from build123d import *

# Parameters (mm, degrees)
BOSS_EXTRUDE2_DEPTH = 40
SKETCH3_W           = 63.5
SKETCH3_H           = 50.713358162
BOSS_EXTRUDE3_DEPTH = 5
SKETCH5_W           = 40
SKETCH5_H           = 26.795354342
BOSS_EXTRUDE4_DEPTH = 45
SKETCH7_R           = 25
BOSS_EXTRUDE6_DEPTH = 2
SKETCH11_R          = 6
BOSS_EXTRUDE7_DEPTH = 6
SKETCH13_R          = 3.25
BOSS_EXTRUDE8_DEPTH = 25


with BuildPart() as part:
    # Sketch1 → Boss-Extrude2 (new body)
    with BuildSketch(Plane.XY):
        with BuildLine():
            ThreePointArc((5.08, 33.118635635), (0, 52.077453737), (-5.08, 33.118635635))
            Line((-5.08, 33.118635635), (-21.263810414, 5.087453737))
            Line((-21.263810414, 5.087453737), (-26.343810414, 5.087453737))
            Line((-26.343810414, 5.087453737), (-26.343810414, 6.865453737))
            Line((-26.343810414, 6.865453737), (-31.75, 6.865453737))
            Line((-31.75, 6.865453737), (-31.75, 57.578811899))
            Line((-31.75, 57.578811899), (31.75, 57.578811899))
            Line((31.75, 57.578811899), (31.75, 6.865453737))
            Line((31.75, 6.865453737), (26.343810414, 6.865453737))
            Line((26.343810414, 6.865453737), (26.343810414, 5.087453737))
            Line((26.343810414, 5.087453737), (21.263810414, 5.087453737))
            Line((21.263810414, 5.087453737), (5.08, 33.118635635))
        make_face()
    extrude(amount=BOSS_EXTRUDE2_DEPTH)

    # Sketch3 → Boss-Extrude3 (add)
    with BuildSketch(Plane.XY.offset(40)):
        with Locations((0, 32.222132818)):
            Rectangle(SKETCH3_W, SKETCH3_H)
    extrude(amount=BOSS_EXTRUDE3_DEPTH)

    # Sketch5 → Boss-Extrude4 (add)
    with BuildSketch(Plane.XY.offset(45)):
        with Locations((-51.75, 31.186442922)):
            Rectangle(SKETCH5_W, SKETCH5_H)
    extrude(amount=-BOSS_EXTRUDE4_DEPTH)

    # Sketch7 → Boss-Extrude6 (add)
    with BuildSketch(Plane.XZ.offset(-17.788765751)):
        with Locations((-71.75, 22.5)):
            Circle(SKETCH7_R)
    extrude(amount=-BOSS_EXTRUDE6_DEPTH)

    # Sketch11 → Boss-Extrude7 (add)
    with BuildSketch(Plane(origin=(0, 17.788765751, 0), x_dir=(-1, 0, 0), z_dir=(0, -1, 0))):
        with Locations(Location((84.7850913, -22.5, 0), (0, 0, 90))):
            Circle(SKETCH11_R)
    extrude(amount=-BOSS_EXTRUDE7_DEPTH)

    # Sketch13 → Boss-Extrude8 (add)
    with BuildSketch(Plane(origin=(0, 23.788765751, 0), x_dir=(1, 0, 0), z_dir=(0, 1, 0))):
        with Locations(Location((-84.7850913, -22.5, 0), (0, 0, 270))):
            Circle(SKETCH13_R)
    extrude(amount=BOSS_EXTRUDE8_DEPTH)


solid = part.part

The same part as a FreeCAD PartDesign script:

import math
import FreeCAD as App
import Part
import Sketcher
from FreeCAD import Vector
Q = App.Units.Quantity

doc = App.newDocument("Part")
params = doc.addObject("Spreadsheet::Sheet", "Params")
for row, (alias, value) in enumerate([
    ("sketch1_radius", "10.16 mm"),
    ("sketch1_width", "63.5 mm"),
    ("sketch1_width2", "5.08 mm"),
    ("pad1_length", "40 mm"),
    ("sketch2_width", "63.5 mm"),
    ("pad2_length", "5 mm"),
    ("sketch3_width", "40 mm"),
    ("pad3_length", "45 mm"),
    ("sketch4_diameter", "50 mm"),
    ("pad4_length", "2 mm"),
    ("sketch5_diameter", "12 mm"),
    ("pad5_length", "6 mm"),
    ("sketch6_diameter", "6.5 mm"),
    ("pad6_length", "25 mm"),
], start=1):
    params.set(f"A{row}", alias)
    params.set(f"B{row}", "=" + value)
    params.setAlias(f"B{row}", alias)

body = doc.addObject("PartDesign::Body", "Body")

# Sketch on XY plane
sketch1 = body.newObject("Sketcher::SketchObject", "Sketch")
sketch1.AttachmentSupport = (doc.getObject("XY_Plane"), [""])
sketch1.MapMode = "FlatFace"
sketch1.addGeometry([
    Part.ArcOfCircle(Part.Circle(Vector(0, 41.9, 0), Vector(0, 0, 1), 10.2), math.radians(-60), math.radians(240)),  # 0
    Part.LineSegment(Vector(5.1, 33.1, 0), Vector(21.3, 5.1, 0)),  # 1
    Part.LineSegment(Vector(21.3, 5.1, 0), Vector(26.3, 5.1, 0)),  # 2
    Part.LineSegment(Vector(26.3, 5.1, 0), Vector(26.3, 6.9, 0)),  # 3
    Part.LineSegment(Vector(26.3, 6.9, 0), Vector(31.8, 6.9, 0)),  # 4
    Part.LineSegment(Vector(31.8, 6.9, 0), Vector(31.8, 57.6, 0)),  # 5
    Part.LineSegment(Vector(31.8, 57.6, 0), Vector(-31.8, 57.6, 0)),  # 6
    Part.LineSegment(Vector(-31.8, 57.6, 0), Vector(-31.8, 6.9, 0)),  # 7
    Part.LineSegment(Vector(-31.8, 6.9, 0), Vector(-26.3, 6.9, 0)),  # 8
    Part.LineSegment(Vector(-26.3, 6.9, 0), Vector(-26.3, 5.1, 0)),  # 9
    Part.LineSegment(Vector(-26.3, 5.1, 0), Vector(-21.3, 5.1, 0)),  # 10
    Part.LineSegment(Vector(-21.3, 5.1, 0), Vector(-5.1, 33.1, 0)),  # 11
], False)
sketch1.addConstraint([
    Sketcher.Constraint("Coincident", 0, 1, 1, 1),
    Sketcher.Constraint("Coincident", 1, 2, 2, 1),
    Sketcher.Constraint("Coincident", 2, 2, 3, 1),
    Sketcher.Constraint("Coincident", 3, 2, 4, 1),
    Sketcher.Constraint("Coincident", 4, 2, 5, 1),
    Sketcher.Constraint("Coincident", 5, 2, 6, 1),
    Sketcher.Constraint("Coincident", 6, 2, 7, 1),
    Sketcher.Constraint("Coincident", 7, 2, 8, 1),
    Sketcher.Constraint("Coincident", 8, 2, 9, 1),
    Sketcher.Constraint("Coincident", 9, 2, 10, 1),
    Sketcher.Constraint("Coincident", 10, 2, 11, 1),
    Sketcher.Constraint("Coincident", 11, 2, 0, 2),
    Sketcher.Constraint("Horizontal", 2),
    Sketcher.Constraint("Vertical", 3),
    Sketcher.Constraint("Horizontal", 4),
    Sketcher.Constraint("Vertical", 5),
    Sketcher.Constraint("Horizontal", 6),
    Sketcher.Constraint("Vertical", 7),
    Sketcher.Constraint("Horizontal", 8),
    Sketcher.Constraint("Vertical", 9),
    Sketcher.Constraint("Horizontal", 10),
    Sketcher.Constraint("Symmetric", 4, 2, 7, 2, -2),
    Sketcher.Constraint("Symmetric", 2, 2, 9, 2, -2),
    Sketcher.Constraint("Symmetric", 0, 1, 11, 2, -2),
    Sketcher.Constraint("Equal", 2, 10),
    Sketcher.Constraint("Angle", 1, Q("-60 deg")),
    Sketcher.Constraint("Radius", 0, Q("10.16 mm")),
    Sketcher.Constraint("DistanceX", 6, 2, 6, 1, Q("63.5 mm")),
    Sketcher.Constraint("DistanceX", 2, 1, 2, 2, Q("5.08 mm")),
    Sketcher.Constraint("DistanceY", 3, 1, 3, 2, Q("1.778 mm")),
    Sketcher.Constraint("DistanceX", -1, 1, 0, 1, Q("5.08 mm")),
    Sketcher.Constraint("DistanceY", 1, 2, 0, 3, Q("36.83 mm")),
    Sketcher.Constraint("DistanceY", 5, 1, 5, 2, Q("50.713358 mm")),
    Sketcher.Constraint("DistanceY", -1, 1, 5, 2, Q("57.578812 mm")),
])
sketch1.setExpression("Constraints[26]", "Params.sketch1_radius")
sketch1.setExpression("Constraints[27]", "Params.sketch1_width")
sketch1.setExpression("Constraints[28]", "Params.sketch1_width2")
pad1 = body.newObject("PartDesign::Pad", "Pad")
pad1.Profile = sketch1
pad1.setExpression("Length", "Params.pad1_length")

# Sketch on XY plane
sketch2 = body.newObject("Sketcher::SketchObject", "Sketch001")
sketch2.AttachmentSupport = (doc.getObject("XY_Plane"), [""])
sketch2.MapMode = "FlatFace"
sketch2.AttachmentOffset = App.Placement(Vector(0, 0, 40), App.Rotation())
sketch2.addGeometry([
    Part.LineSegment(Vector(-32, 58, 0), Vector(-32, 7, 0)),
    Part.LineSegment(Vector(-32, 7, 0), Vector(32, 7, 0)),
    Part.LineSegment(Vector(32, 7, 0), Vector(32, 58, 0)),
    Part.LineSegment(Vector(32, 58, 0), Vector(-32, 58, 0)),
], False)
sketch2.addConstraint([
    Sketcher.Constraint("Coincident", 0, 2, 1, 1),
    Sketcher.Constraint("Coincident", 1, 2, 2, 1),
    Sketcher.Constraint("Coincident", 2, 2, 3, 1),
    Sketcher.Constraint("Coincident", 3, 2, 0, 1),
    Sketcher.Constraint("Vertical", 0),
    Sketcher.Constraint("Horizontal", 1),
    Sketcher.Constraint("Vertical", 2),
    Sketcher.Constraint("Horizontal", 3),
    Sketcher.Constraint("DistanceX", 1, 1, 1, 2, Q("63.5 mm")),
    Sketcher.Constraint("DistanceX", 0, 2, -1, 1, Q("31.75 mm")),
    Sketcher.Constraint("DistanceY", 0, 2, 0, 1, Q("50.713358 mm")),
    Sketcher.Constraint("DistanceY", -1, 1, 2, 2, Q("57.578812 mm")),
])
sketch2.setExpression("Constraints[8]", "Params.sketch2_width")
pad2 = body.newObject("PartDesign::Pad", "Pad001")
pad2.Profile = sketch2
pad2.setExpression("Length", "Params.pad2_length")

# Sketch on XY plane
sketch3 = body.newObject("Sketcher::SketchObject", "Sketch002")
sketch3.AttachmentSupport = (doc.getObject("XY_Plane"), [""])
sketch3.MapMode = "FlatFace"
sketch3.AttachmentOffset = App.Placement(Vector(0, 0, 45), App.Rotation())
sketch3.addGeometry([
    Part.LineSegment(Vector(-72, 45, 0), Vector(-72, 18, 0)),
    Part.LineSegment(Vector(-72, 18, 0), Vector(-32, 18, 0)),
    Part.LineSegment(Vector(-32, 18, 0), Vector(-32, 45, 0)),
    Part.LineSegment(Vector(-32, 45, 0), Vector(-72, 45, 0)),
], False)
sketch3.addConstraint([
    Sketcher.Constraint("Coincident", 0, 2, 1, 1),
    Sketcher.Constraint("Coincident", 1, 2, 2, 1),
    Sketcher.Constraint("Coincident", 2, 2, 3, 1),
    Sketcher.Constraint("Coincident", 3, 2, 0, 1),
    Sketcher.Constraint("Vertical", 0),
    Sketcher.Constraint("Horizontal", 1),
    Sketcher.Constraint("Vertical", 2),
    Sketcher.Constraint("Horizontal", 3),
    Sketcher.Constraint("DistanceX", 1, 1, 1, 2, Q("40 mm")),
    Sketcher.Constraint("DistanceX", 0, 2, -1, 1, Q("71.75 mm")),
    Sketcher.Constraint("DistanceY", 0, 2, 0, 1, Q("26.795354 mm")),
    Sketcher.Constraint("DistanceY", -1, 1, 2, 2, Q("44.58412 mm")),
])
sketch3.setExpression("Constraints[8]", "Params.sketch3_width")
pad3 = body.newObject("PartDesign::Pad", "Pad002")
pad3.Profile = sketch3
pad3.setExpression("Length", "Params.pad3_length")
pad3.Reversed = True

# Sketch on XZ plane
sketch4 = body.newObject("Sketcher::SketchObject", "Sketch003")
sketch4.AttachmentSupport = (doc.getObject("XZ_Plane"), [""])
sketch4.MapMode = "FlatFace"
sketch4.AttachmentOffset = App.Placement(Vector(0, 0, -17.788766), App.Rotation())
sketch4.addGeometry(Part.Circle(Vector(-72, 22, 0), Vector(0, 0, 1), 25), False)
sketch4.addConstraint([
    Sketcher.Constraint("Diameter", 0, Q("50 mm")),
    Sketcher.Constraint("DistanceY", -1, 1, 0, 3, Q("22.5 mm")),
    Sketcher.Constraint("DistanceX", 0, 3, -1, 1, Q("71.75 mm")),
])
sketch4.setExpression("Constraints[0]", "Params.sketch4_diameter")
pad4 = body.newObject("PartDesign::Pad", "Pad003")
pad4.Profile = sketch4
pad4.setExpression("Length", "Params.pad4_length")
pad4.Reversed = True

# Sketch on XZ plane
sketch5 = body.newObject("Sketcher::SketchObject", "Sketch004")
sketch5.AttachmentSupport = (doc.getObject("XZ_Plane"), [""])
sketch5.MapMode = "FlatFace"
sketch5.AttachmentOffset = App.Placement(Vector(0, 0, -17.788766), App.Rotation())
sketch5.addGeometry(Part.Circle(Vector(-85, 22, 0), Vector(0, 0, 1), 6), False)
sketch5.addConstraint([
    Sketcher.Constraint("Diameter", 0, Q("12 mm")),
    Sketcher.Constraint("DistanceY", -1, 1, 0, 3, Q("22.5 mm")),
    Sketcher.Constraint("DistanceX", 0, 3, -1, 1, Q("84.785091 mm")),
])
sketch5.setExpression("Constraints[0]", "Params.sketch5_diameter")
pad5 = body.newObject("PartDesign::Pad", "Pad004")
pad5.Profile = sketch5
pad5.setExpression("Length", "Params.pad5_length")
pad5.Reversed = True

# Sketch on XZ plane
sketch6 = body.newObject("Sketcher::SketchObject", "Sketch005")
sketch6.AttachmentSupport = (doc.getObject("XZ_Plane"), [""])
sketch6.MapMode = "FlatFace"
sketch6.AttachmentOffset = App.Placement(Vector(0, 0, -23.788766), App.Rotation())
sketch6.addGeometry(Part.Circle(Vector(-84.8, 22.5, 0), Vector(0, 0, 1), 3.2), False)
sketch6.addConstraint([
    Sketcher.Constraint("Diameter", 0, Q("6.5 mm")),
    Sketcher.Constraint("DistanceY", -1, 1, 0, 3, Q("22.5 mm")),
    Sketcher.Constraint("DistanceX", 0, 3, -1, 1, Q("84.785091 mm")),
])
sketch6.setExpression("Constraints[0]", "Params.sketch6_diameter")
pad6 = body.newObject("PartDesign::Pad", "Pad005")
pad6.Profile = sketch6
pad6.setExpression("Length", "Params.pad6_length")
pad6.Reversed = True

doc.recompute()
